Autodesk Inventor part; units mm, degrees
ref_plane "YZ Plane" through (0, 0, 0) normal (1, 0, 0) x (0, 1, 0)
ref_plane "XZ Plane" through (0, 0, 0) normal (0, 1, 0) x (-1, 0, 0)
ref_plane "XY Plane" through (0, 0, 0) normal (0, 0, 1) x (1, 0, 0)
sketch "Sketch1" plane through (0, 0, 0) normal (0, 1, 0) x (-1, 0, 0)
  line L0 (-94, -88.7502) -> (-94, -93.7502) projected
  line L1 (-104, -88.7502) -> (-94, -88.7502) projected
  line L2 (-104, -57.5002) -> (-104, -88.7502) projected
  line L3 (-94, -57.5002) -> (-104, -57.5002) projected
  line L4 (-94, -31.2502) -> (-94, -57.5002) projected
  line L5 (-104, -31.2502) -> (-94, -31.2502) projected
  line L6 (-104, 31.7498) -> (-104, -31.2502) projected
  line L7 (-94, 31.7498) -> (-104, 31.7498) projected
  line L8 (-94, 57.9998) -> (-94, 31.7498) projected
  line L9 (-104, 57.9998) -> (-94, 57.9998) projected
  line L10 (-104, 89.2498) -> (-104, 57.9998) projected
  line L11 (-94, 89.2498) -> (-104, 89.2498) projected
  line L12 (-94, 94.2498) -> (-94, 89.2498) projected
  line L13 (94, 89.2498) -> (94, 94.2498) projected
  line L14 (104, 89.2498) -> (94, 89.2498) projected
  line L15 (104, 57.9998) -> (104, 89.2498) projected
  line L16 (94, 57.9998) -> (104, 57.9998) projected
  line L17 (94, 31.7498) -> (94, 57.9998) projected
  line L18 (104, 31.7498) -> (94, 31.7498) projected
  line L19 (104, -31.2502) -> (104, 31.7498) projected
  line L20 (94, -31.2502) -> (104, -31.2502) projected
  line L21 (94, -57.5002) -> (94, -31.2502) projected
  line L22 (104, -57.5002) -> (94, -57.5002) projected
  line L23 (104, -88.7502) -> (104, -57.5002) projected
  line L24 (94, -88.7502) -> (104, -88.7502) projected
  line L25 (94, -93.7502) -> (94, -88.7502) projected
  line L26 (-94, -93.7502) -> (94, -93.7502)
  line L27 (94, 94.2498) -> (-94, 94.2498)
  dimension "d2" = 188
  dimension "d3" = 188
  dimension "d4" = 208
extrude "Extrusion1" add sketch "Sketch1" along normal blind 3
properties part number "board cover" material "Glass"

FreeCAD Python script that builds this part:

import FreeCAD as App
import Part
import Sketcher

V = App.Vector

doc = App.newDocument("Part")
body = doc.addObject("PartDesign::Body", "Body")

# Sketch on XZ plane
sketch1 = body.newObject("Sketcher::SketchObject", "Sketch")
sketch1.AttachmentSupport = (doc.getObject("XZ_Plane"), [""])
sketch1.MapMode = "FlatFace"
sketch1.addGeometry(Part.LineSegment(V(104, -89, 0), V(94, -89, 0)), False)
sketch1.addGeometry(Part.LineSegment(V(94, -89, 0), V(94, -94, 0)), False)
sketch1.addGeometry(Part.LineSegment(V(94, -94, 0), V(-94, -94, 0)), False)
sketch1.addGeometry(Part.LineSegment(V(-94, -94, 0), V(-94, -89, 0)), False)
sketch1.addGeometry(Part.LineSegment(V(-94, -89, 0), V(-104, -89, 0)), False)
sketch1.addGeometry(Part.LineSegment(V(-104, -89, 0), V(-104, -58, 0)), False)
sketch1.addGeometry(Part.LineSegment(V(-104, -58, 0), V(-94, -58, 0)), False)
sketch1.addGeometry(Part.LineSegment(V(-94, -58, 0), V(-94, -31, 0)), False)
sketch1.addGeometry(Part.LineSegment(V(-94, -31, 0), V(-104, -31, 0)), False)
sketch1.addGeometry(Part.LineSegment(V(-104, -31, 0), V(-104, 32, 0)), False)
sketch1.addGeometry(Part.LineSegment(V(-104, 32, 0), V(-94, 32, 0)), False)
sketch1.addGeometry(Part.LineSegment(V(-94, 32, 0), V(-94, 58, 0)), False)
sketch1.addGeometry(Part.LineSegment(V(-94, 58, 0), V(-104, 58, 0)), False)
sketch1.addGeometry(Part.LineSegment(V(-104, 58, 0), V(-104, 89, 0)), False)
sketch1.addGeometry(Part.LineSegment(V(-104, 89, 0), V(-94, 89, 0)), False)
sketch1.addGeometry(Part.LineSegment(V(-94, 89, 0), V(-94, 94, 0)), False)
sketch1.addGeometry(Part.LineSegment(V(-94, 94, 0), V(94, 94, 0)), False)
sketch1.addGeometry(Part.LineSegment(V(94, 94, 0), V(94, 89, 0)), False)
sketch1.addGeometry(Part.LineSegment(V(94, 89, 0), V(104, 89, 0)), False)
sketch1.addGeometry(Part.LineSegment(V(104, 89, 0), V(104, 58, 0)), False)
sketch1.addGeometry(Part.LineSegment(V(104, 58, 0), V(94, 58, 0)), False)
sketch1.addGeometry(Part.LineSegment(V(94, 58, 0), V(94, 32, 0)), False)
sketch1.addGeometry(Part.LineSegment(V(94, 32, 0), V(104, 32, 0)), False)
sketch1.addGeometry(Part.LineSegment(V(104, 32, 0), V(104, -31, 0)), False)
sketch1.addGeometry(Part.LineSegment(V(104, -31, 0), V(94, -31, 0)), False)
sketch1.addGeometry(Part.LineSegment(V(94, -31, 0), V(94, -58, 0)), False)
sketch1.addGeometry(Part.LineSegment(V(94, -58, 0), V(104, -58, 0)), False)
sketch1.addGeometry(Part.LineSegment(V(104, -58, 0), V(104, -89, 0)), False)
sketch1.addConstraint(Sketcher.Constraint("Coincident", 0, 2, 1, 1))
sketch1.addConstraint(Sketcher.Constraint("Coincident", 1, 2, 2, 1))
sketch1.addConstraint(Sketcher.Constraint("Coincident", 2, 2, 3, 1))
sketch1.addConstraint(Sketcher.Constraint("Coincident", 3, 2, 4, 1))
sketch1.addConstraint(Sketcher.Constraint("Coincident", 4, 2, 5, 1))
sketch1.addConstraint(Sketcher.Constraint("Coincident", 5, 2, 6, 1))
sketch1.addConstraint(Sketcher.Constraint("Coincident", 6, 2, 7, 1))
sketch1.addConstraint(Sketcher.Constraint("Coincident", 7, 2, 8, 1))
sketch1.addConstraint(Sketcher.Constraint("Coincident", 8, 2, 9, 1))
sketch1.addConstraint(Sketcher.Constraint("Coincident", 9, 2, 10, 1))
sketch1.addConstraint(Sketcher.Constraint("Coincident", 10, 2, 11, 1))
sketch1.addConstraint(Sketcher.Constraint("Coincident", 11, 2, 12, 1))
sketch1.addConstraint(Sketcher.Constraint("Coincident", 12, 2, 13, 1))
sketch1.addConstraint(Sketcher.Constraint("Coincident", 13, 2, 14, 1))
sketch1.addConstraint(Sketcher.Constraint("Coincident", 14, 2, 15, 1))
sketch1.addConstraint(Sketcher.Constraint("Coincident", 15, 2, 16, 1))
sketch1.addConstraint(Sketcher.Constraint("Coincident", 16, 2, 17, 1))
sketch1.addConstraint(Sketcher.Constraint("Coincident", 17, 2, 18, 1))
sketch1.addConstraint(Sketcher.Constraint("Coincident", 18, 2, 19, 1))
sketch1.addConstraint(Sketcher.Constraint("Coincident", 19, 2, 20, 1))
sketch1.addConstraint(Sketcher.Constraint("Coincident", 20, 2, 21, 1))
sketch1.addConstraint(Sketcher.Constraint("Coincident", 21, 2, 22, 1))
sketch1.addConstraint(Sketcher.Constraint("Coincident", 22, 2, 23, 1))
sketch1.addConstraint(Sketcher.Constraint("Coincident", 23, 2, 24, 1))
sketch1.addConstraint(Sketcher.Constraint("Coincident", 24, 2, 25, 1))
sketch1.addConstraint(Sketcher.Constraint("Coincident", 25, 2, 26, 1))
sketch1.addConstraint(Sketcher.Constraint("Coincident", 26, 2, 27, 1))
sketch1.addConstraint(Sketcher.Constraint("Coincident", 27, 2, 0, 1))
sketch1.addConstraint(Sketcher.Constraint("Horizontal", 0))
sketch1.addConstraint(Sketcher.Constraint("Vertical", 1))
sketch1.addConstraint(Sketcher.Constraint("Horizontal", 2))
sketch1.addConstraint(Sketcher.Constraint("Vertical", 3))
sketch1.addConstraint(Sketcher.Constraint("Horizontal", 4))
sketch1.addConstraint(Sketcher.Constraint("Vertical", 5))
sketch1.addConstraint(Sketcher.Constraint("Horizontal", 6))
sketch1.addConstraint(Sketcher.Constraint("Vertical", 7))
sketch1.addConstraint(Sketcher.Constraint("Horizontal", 8))
sketch1.addConstraint(Sketcher.Constraint("Vertical", 9))
sketch1.addConstraint(Sketcher.Constraint("Horizontal", 10))
sketch1.addConstraint(Sketcher.Constraint("Vertical", 11))
sketch1.addConstraint(Sketcher.Constraint("Horizontal", 12))
sketch1.addConstraint(Sketcher.Constraint("Vertical", 13))
sketch1.addConstraint(Sketcher.Constraint("Horizontal", 14))
sketch1.addConstraint(Sketcher.Constraint("Vertical", 15))
sketch1.addConstraint(Sketcher.Constraint("Horizontal", 16))
sketch1.addConstraint(Sketcher.Constraint("Vertical", 17))
sketch1.addConstraint(Sketcher.Constraint("Horizontal", 18))
sketch1.addConstraint(Sketcher.Constraint("Vertical", 19))
sketch1.addConstraint(Sketcher.Constraint("Horizontal", 20))
sketch1.addConstraint(Sketcher.Constraint("Vertical", 21))
sketch1.addConstraint(Sketcher.Constraint("Horizontal", 22))
sketch1.addConstraint(Sketcher.Constraint("Vertical", 23))
sketch1.addConstraint(Sketcher.Constraint("Horizontal", 24))
sketch1.addConstraint(Sketcher.Constraint("Vertical", 25))
sketch1.addConstraint(Sketcher.Constraint("Horizontal", 26))
sketch1.addConstraint(Sketcher.Constraint("Vertical", 27))
sketch1.addConstraint(Sketcher.Constraint("Symmetric", 0, 2, 3, 2, -2))
sketch1.addConstraint(Sketcher.Constraint("Symmetric", 14, 2, 17, 2, -2))
sketch1.addConstraint(Sketcher.Constraint("Symmetric", 12, 2, 19, 2, -2))
sketch1.addConstraint(Sketcher.Constraint("Symmetric", 10, 2, 21, 2, -2))
sketch1.addConstraint(Sketcher.Constraint("Symmetric", 8, 2, 23, 2, -2))
sketch1.addConstraint(Sketcher.Constraint("Symmetric", 6, 2, 25, 2, -2))
sketch1.addConstraint(Sketcher.Constraint("Vertical", 3, 2, 6, 2))
sketch1.addConstraint(Sketcher.Constraint("Vertical", 5, 2, 8, 2))
sketch1.addConstraint(Sketcher.Constraint("Vertical", 7, 2, 10, 2))
sketch1.addConstraint(Sketcher.Constraint("Vertical", 9, 2, 12, 2))
sketch1.addConstraint(Sketcher.Constraint("Vertical", 11, 2, 14, 2))
sketch1.addConstraint(Sketcher.Constraint("Vertical", 23, 2, 26, 2))
sketch1.addConstraint(Sketcher.Constraint("Equal", 7, 11))
sketch1.addConstraint(Sketcher.Constraint("Equal", 5, 13))
sketch1.addConstraint(Sketcher.Constraint("Equal", 3, 15))
sketch1.addConstraint(Sketcher.Constraint("DistanceX", 2, 2, 2, 1, 188.0))
sketch1.addConstraint(Sketcher.Constraint("DistanceY", 1, 2, 16, 2, 188.0))
sketch1.addConstraint(Sketcher.Constraint("DistanceX", 0, 2, 0, 1, 10.0))
sketch1.addConstraint(Sketcher.Constraint("DistanceY", 1, 2, 1, 1, 5.0))
sketch1.addConstraint(Sketcher.Constraint("DistanceY", 9, 1, 9, 2, 63.0))
sketch1.addConstraint(Sketcher.Constraint("DistanceY", 5, 1, 5, 2, 31.25))
sketch1.addConstraint(Sketcher.Constraint("DistanceY", 0, 2, -1, 1, 88.7502))
pad1 = body.newObject("PartDesign::Pad", "Pad")
pad1.Profile = sketch1
pad1.Length = 3
pad1.Reversed = True

doc.recompute()
